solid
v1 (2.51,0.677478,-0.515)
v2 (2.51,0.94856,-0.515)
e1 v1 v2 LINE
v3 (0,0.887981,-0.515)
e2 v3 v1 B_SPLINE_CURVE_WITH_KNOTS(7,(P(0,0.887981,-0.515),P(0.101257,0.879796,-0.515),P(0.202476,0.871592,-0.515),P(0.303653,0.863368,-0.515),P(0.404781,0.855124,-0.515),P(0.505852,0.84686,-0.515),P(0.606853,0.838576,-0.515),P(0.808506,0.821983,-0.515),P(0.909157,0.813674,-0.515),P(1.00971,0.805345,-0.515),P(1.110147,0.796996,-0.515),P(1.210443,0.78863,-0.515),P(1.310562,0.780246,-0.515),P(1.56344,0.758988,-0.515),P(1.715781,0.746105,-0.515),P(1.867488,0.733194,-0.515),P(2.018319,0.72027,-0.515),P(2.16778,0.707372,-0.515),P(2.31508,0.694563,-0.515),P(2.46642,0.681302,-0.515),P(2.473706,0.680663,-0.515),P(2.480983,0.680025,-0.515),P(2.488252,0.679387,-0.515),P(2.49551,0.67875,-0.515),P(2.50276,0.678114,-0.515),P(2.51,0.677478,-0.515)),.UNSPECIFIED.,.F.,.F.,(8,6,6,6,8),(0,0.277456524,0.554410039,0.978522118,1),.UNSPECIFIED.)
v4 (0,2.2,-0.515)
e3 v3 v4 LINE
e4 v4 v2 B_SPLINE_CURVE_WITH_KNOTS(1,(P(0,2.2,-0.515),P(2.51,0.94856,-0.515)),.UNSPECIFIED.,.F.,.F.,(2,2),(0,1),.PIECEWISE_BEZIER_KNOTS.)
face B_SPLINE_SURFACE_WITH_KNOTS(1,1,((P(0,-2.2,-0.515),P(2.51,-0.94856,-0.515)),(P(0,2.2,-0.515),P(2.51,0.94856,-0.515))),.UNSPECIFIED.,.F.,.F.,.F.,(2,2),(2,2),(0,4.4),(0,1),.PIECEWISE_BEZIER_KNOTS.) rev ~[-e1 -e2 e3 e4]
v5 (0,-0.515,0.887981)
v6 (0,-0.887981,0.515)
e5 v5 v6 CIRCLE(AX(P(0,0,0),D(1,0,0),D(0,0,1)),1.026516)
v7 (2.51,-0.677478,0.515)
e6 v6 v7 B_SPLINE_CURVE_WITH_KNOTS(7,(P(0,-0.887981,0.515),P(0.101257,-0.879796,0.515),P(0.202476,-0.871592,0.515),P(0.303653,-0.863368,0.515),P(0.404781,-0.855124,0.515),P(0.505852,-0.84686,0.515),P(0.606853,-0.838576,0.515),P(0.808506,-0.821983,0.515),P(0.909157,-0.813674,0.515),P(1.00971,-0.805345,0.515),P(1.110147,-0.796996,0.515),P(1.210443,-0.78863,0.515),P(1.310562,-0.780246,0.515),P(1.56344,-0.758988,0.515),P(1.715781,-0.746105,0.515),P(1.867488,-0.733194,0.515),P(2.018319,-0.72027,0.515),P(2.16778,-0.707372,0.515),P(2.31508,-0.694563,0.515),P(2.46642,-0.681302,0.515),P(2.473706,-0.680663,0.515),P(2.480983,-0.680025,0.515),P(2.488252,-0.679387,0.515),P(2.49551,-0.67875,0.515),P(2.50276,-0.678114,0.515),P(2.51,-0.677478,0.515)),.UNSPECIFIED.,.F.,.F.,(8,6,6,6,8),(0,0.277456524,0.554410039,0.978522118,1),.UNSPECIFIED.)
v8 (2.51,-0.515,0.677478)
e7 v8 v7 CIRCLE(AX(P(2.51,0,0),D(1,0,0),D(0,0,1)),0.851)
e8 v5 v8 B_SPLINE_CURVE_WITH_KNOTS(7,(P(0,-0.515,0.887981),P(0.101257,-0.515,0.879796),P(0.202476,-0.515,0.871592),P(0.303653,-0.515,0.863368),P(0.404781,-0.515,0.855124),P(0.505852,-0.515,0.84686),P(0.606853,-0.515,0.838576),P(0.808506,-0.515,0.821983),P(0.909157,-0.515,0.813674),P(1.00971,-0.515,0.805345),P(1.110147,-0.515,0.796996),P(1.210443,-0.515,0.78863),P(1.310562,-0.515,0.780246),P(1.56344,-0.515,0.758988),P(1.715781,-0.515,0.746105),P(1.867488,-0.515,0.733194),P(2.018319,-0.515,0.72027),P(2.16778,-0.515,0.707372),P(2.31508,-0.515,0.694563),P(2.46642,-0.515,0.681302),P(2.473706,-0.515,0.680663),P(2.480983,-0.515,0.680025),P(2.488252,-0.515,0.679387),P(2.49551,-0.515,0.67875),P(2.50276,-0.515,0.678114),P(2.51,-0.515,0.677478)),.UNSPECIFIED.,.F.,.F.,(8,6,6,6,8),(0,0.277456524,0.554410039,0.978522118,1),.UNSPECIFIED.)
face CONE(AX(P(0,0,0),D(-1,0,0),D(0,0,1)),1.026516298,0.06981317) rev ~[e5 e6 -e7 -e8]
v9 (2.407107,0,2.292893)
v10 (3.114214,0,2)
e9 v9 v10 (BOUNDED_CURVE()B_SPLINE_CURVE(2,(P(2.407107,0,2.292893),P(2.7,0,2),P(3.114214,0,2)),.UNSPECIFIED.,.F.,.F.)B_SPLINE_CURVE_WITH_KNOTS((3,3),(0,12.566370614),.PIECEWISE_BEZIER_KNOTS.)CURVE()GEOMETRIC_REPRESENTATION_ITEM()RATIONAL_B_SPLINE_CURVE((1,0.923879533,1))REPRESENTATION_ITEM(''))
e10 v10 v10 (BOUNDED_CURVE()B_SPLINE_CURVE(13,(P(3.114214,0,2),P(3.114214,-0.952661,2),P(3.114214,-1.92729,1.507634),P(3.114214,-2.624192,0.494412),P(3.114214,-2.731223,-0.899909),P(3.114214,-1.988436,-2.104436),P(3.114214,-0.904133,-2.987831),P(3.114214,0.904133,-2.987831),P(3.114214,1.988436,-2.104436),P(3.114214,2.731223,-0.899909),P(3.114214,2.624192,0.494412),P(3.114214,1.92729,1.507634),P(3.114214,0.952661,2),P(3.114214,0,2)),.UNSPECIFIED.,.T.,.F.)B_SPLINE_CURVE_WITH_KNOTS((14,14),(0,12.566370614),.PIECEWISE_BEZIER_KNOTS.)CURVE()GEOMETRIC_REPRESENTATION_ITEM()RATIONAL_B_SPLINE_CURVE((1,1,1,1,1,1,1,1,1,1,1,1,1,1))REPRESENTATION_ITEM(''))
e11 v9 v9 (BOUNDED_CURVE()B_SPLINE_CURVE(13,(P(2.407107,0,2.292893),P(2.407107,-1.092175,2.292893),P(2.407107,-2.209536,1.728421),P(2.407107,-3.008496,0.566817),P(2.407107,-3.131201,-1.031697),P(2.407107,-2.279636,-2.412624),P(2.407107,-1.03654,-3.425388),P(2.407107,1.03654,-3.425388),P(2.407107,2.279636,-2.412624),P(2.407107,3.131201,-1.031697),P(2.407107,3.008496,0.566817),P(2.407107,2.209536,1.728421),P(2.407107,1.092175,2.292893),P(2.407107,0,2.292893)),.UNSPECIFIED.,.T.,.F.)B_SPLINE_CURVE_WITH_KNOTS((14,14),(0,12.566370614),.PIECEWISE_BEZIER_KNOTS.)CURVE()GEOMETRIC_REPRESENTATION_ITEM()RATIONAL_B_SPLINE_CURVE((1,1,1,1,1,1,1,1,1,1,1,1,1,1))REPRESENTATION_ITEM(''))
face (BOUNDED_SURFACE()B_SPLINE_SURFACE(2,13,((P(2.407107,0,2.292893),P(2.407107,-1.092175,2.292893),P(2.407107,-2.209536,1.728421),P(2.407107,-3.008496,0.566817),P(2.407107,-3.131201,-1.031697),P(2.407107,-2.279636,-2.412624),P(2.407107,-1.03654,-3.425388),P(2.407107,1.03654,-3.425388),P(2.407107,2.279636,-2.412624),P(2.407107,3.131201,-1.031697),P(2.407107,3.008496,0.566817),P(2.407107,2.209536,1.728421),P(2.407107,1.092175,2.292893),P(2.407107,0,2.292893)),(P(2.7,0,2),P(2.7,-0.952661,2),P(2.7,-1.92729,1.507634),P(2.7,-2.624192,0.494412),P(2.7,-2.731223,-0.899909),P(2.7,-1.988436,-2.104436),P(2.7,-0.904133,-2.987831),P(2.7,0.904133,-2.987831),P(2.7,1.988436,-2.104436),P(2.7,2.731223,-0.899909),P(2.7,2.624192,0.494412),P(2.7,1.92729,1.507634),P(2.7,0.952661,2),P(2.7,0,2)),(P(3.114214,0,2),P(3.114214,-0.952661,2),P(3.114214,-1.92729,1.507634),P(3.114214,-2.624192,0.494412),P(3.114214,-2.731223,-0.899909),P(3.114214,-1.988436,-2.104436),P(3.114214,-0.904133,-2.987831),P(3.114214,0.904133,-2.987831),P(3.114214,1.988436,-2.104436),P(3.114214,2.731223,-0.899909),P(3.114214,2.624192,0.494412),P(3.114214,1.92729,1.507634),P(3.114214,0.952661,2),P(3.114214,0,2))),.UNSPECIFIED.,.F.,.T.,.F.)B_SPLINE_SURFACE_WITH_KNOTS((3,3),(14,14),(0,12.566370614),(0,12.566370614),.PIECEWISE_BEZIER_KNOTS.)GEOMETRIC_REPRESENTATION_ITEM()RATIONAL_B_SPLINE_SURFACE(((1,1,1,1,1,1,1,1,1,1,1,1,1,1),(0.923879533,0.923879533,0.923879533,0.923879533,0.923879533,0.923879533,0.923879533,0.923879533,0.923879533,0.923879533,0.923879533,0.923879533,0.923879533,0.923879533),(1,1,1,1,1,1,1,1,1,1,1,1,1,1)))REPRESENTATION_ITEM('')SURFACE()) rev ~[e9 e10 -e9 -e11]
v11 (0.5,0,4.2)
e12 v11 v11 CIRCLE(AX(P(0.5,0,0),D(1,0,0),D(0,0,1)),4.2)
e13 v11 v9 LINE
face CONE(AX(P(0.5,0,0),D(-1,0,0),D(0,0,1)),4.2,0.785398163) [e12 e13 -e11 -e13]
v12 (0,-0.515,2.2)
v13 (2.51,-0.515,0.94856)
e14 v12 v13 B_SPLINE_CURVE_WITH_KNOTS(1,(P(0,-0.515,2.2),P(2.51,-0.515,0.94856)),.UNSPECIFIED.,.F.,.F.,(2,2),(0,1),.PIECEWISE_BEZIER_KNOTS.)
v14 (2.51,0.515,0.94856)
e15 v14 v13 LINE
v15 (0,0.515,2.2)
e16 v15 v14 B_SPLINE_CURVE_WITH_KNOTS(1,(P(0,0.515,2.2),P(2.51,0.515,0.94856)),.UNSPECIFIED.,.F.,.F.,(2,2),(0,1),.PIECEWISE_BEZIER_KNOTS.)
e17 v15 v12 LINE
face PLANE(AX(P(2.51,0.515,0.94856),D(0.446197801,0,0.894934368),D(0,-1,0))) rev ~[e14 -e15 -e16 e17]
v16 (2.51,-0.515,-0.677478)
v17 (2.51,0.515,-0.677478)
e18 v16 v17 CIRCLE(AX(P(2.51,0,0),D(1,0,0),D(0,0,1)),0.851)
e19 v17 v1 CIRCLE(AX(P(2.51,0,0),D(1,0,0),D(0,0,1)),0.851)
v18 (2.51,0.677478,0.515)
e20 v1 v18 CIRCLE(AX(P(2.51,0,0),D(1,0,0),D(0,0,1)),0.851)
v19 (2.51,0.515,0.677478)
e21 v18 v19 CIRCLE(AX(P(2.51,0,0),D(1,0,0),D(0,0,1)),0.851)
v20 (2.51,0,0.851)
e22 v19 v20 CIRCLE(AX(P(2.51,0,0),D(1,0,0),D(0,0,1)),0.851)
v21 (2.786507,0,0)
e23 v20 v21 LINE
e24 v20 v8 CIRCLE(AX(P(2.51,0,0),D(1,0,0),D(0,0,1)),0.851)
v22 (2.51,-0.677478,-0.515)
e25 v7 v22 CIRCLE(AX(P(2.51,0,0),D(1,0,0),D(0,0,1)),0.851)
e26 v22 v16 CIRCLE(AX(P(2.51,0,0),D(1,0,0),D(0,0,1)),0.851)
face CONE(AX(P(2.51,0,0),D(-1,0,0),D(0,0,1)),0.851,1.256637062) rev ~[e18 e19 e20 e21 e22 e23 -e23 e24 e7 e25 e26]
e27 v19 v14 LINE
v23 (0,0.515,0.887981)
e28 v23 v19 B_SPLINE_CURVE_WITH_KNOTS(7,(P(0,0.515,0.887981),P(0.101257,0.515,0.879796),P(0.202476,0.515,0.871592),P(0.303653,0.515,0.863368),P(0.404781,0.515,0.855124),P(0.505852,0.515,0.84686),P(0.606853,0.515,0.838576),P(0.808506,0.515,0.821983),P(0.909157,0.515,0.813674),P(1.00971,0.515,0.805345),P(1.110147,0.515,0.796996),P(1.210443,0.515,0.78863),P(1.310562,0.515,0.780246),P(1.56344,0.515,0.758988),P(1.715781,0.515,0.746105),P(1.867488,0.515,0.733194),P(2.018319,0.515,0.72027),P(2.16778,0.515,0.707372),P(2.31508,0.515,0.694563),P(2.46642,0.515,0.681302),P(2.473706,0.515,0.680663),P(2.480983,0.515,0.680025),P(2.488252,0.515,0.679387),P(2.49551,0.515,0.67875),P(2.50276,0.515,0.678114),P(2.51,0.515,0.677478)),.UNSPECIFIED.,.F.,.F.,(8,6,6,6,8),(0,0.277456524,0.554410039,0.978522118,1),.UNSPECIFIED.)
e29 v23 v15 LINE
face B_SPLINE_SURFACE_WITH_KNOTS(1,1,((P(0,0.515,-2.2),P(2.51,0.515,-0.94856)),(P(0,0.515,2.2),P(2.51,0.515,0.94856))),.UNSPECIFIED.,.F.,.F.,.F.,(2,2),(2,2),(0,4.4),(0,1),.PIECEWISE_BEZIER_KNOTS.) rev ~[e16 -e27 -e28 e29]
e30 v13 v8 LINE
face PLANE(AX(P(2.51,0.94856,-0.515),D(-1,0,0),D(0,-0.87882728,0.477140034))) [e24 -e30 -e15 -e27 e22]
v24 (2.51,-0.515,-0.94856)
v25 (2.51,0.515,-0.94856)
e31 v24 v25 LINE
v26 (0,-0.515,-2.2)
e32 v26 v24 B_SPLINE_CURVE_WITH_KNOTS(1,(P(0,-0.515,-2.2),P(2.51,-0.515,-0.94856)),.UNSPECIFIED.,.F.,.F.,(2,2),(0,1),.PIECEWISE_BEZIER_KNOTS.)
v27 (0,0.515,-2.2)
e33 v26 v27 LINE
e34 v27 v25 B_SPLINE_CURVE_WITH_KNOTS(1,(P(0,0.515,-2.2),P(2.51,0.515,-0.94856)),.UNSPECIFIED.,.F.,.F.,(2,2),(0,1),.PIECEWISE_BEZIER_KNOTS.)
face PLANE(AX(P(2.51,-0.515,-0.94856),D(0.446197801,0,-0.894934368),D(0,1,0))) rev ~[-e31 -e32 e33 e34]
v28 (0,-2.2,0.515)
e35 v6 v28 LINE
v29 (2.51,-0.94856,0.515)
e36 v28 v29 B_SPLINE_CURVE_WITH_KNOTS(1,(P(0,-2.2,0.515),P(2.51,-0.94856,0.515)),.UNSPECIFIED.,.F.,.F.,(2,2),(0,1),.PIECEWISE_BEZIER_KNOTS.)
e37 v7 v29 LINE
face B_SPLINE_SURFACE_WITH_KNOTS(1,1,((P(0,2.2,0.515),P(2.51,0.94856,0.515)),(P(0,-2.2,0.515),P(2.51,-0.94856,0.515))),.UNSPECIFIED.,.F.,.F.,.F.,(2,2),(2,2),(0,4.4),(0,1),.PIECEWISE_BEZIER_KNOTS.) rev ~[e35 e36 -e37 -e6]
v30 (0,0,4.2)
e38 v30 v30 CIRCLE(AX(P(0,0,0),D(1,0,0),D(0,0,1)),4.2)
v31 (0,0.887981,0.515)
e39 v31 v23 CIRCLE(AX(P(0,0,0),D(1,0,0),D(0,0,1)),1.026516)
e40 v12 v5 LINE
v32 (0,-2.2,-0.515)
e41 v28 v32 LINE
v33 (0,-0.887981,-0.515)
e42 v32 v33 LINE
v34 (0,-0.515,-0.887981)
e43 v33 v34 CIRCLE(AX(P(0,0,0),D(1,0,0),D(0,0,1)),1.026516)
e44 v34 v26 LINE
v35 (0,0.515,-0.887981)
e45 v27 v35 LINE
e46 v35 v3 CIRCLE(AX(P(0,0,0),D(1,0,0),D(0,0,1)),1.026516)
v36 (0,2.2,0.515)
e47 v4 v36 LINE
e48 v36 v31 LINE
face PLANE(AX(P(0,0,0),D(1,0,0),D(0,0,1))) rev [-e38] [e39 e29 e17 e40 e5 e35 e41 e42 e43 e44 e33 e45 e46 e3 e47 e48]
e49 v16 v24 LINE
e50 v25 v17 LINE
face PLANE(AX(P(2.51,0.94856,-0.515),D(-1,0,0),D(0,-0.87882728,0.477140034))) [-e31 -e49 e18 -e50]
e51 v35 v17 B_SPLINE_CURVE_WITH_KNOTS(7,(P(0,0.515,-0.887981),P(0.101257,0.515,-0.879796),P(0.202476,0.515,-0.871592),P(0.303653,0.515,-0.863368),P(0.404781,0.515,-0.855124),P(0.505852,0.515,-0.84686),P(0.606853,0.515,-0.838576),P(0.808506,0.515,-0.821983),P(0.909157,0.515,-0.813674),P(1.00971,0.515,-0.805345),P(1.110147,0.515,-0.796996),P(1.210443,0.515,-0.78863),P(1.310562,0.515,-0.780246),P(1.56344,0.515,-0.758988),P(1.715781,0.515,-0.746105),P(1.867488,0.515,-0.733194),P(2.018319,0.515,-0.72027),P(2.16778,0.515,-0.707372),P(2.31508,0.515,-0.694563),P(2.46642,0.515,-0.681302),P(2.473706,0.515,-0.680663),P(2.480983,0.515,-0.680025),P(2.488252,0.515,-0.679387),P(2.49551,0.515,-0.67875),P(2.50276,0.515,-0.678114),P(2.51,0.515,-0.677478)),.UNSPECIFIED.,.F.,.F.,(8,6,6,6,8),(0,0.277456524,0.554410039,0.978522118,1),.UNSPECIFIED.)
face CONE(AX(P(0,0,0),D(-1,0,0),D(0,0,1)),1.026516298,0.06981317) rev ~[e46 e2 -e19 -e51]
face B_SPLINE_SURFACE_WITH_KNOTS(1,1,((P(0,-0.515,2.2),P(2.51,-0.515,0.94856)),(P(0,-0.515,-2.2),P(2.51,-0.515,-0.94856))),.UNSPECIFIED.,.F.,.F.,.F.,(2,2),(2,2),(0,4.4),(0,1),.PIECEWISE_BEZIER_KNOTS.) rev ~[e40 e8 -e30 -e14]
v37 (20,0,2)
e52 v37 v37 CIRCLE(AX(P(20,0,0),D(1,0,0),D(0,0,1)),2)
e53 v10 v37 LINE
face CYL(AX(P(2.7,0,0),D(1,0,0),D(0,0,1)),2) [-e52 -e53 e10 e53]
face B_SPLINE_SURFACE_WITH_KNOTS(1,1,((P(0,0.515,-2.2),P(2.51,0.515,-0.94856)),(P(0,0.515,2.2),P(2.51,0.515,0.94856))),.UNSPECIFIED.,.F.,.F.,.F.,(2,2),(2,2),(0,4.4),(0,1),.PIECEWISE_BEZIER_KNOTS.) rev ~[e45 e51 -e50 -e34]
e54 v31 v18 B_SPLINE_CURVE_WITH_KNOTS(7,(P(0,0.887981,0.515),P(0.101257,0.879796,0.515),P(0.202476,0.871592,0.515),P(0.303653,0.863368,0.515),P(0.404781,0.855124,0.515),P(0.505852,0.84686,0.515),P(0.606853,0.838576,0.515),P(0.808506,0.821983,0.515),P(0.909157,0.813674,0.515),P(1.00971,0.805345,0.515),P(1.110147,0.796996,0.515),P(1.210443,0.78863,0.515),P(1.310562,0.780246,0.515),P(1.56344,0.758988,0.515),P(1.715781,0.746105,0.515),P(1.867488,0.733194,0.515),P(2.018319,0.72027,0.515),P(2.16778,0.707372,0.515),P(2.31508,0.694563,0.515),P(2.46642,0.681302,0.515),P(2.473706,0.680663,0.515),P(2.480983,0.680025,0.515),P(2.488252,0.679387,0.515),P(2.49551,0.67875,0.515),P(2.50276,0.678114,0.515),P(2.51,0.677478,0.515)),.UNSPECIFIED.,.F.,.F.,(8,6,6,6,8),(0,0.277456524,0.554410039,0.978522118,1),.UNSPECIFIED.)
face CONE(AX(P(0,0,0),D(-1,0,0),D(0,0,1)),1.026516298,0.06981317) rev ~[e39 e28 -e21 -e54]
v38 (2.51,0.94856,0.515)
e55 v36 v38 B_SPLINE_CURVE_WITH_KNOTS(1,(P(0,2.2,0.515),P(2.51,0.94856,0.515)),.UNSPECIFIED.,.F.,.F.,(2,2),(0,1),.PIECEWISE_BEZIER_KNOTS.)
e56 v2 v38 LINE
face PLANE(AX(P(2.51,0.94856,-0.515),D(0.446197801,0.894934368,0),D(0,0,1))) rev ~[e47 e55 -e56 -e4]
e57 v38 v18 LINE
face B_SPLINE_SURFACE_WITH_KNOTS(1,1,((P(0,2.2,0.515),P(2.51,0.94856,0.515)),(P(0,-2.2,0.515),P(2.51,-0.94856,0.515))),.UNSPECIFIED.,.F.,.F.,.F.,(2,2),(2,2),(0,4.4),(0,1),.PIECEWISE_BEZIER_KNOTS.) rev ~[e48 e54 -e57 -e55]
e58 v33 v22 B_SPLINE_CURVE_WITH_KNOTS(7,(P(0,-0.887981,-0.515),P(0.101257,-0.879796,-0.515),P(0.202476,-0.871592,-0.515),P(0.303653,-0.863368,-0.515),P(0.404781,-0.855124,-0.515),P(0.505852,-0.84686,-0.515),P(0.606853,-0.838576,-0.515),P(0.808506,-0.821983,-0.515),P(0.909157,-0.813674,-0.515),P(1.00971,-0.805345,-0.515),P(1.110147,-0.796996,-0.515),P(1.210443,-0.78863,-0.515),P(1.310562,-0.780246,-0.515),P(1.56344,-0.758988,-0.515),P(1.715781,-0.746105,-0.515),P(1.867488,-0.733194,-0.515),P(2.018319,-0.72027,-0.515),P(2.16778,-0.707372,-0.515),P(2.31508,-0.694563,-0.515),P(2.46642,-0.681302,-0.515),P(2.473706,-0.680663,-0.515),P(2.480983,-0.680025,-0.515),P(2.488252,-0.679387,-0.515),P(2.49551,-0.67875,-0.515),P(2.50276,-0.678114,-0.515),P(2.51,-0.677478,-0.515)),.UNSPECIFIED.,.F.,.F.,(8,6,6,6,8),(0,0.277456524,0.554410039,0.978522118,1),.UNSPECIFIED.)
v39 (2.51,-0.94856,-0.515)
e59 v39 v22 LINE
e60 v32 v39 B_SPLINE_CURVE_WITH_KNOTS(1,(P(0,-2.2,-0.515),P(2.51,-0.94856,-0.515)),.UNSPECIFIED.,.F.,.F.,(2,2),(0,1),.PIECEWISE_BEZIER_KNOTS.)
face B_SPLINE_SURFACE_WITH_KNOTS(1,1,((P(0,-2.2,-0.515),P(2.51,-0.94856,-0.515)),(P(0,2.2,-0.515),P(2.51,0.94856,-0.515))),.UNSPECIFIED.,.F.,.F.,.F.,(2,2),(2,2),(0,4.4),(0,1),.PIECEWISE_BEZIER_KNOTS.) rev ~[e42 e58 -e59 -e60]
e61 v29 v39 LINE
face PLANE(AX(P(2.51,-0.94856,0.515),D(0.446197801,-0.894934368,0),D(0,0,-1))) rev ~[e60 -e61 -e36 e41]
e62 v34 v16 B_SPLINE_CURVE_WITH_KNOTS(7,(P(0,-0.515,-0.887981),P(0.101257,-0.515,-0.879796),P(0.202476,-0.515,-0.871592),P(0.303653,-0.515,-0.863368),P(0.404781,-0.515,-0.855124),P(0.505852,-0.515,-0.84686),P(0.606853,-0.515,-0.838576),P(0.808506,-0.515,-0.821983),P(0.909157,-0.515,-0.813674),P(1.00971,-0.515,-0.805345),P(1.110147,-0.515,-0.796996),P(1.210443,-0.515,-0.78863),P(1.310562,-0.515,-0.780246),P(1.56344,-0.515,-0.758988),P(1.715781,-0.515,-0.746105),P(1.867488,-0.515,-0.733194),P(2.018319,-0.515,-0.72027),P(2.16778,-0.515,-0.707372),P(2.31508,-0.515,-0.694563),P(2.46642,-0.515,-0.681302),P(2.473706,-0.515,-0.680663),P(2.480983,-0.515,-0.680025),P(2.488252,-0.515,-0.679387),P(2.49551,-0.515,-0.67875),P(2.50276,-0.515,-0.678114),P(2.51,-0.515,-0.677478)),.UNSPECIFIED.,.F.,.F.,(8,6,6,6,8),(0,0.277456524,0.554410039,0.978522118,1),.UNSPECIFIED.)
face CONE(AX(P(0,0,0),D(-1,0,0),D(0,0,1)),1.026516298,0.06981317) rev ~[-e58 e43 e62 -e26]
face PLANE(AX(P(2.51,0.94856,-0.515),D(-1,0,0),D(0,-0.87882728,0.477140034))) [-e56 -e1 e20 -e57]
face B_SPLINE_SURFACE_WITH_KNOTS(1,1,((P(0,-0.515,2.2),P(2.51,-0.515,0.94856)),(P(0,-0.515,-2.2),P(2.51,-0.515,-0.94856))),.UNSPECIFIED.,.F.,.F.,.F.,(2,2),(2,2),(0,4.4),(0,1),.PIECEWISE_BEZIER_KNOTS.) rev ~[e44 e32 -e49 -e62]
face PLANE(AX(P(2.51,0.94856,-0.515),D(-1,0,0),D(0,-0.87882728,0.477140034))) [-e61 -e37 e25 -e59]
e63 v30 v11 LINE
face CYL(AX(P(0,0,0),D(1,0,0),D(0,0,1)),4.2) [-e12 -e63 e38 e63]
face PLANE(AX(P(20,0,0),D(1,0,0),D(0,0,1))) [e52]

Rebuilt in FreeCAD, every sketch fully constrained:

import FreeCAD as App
import Part
import Sketcher
Q = App.Units.Quantity


def edges_at(feature, points):
    """Names of the edges that pass closest to the given points."""
    edges = feature.Shape.Edges
    near = lambda p: min(range(len(edges)), key=lambda i: edges[i].distToShape(Part.Vertex(*p))[0])
    return sorted({f"Edge{near(p) + 1}" for p in points})


def add_polygon(sketch, points):
    """Adds a closed chain of lines whose ends are joined by coincident constraints."""
    first, n = sketch.GeometryCount, len(points)
    for a, b in zip(points, points[1:] + points[:1]):
        sketch.addGeometry(Part.LineSegment(App.Vector(*a, 0), App.Vector(*b, 0)), False)
    for i in range(n):
        sketch.addConstraint(Sketcher.Constraint("Coincident", first + i, 2, first + (i + 1) % n, 1))

doc = App.newDocument("Part")
params = doc.addObject("Spreadsheet::Sheet", "Params")
for row, (alias, value) in enumerate([
    ("sketch1_width", "20 mm"),
    ("sketch1_height", "2 mm"),
    ("sketch1_width2", "17.3 mm"),
    ("sketch1_width3", "0.5 mm"),
    ("revolution_angle", "360 deg"),
    ("fillet_radius", "1 mm"),
    ("sketch2_width", "4.4 mm"),
    ("sketch2_height", "1.03 mm"),
    ("sketch3_height", "1.03 mm"),
    ("groove_angle", "360 deg"),
], start=1):
    params.set(f"A{row}", alias)
    params.set(f"B{row}", "=" + value)
    params.setAlias(f"B{row}", alias)

body = doc.addObject("PartDesign::Body", "Body")

# Sketch on XY plane
sketch1 = doc.addObject("Sketcher::SketchObject", "Sketch")
body.addObject(sketch1)
sketch1.AttachmentSupport = (doc.XY_Plane, [""])
sketch1.MapMode = "FlatFace"
add_polygon(sketch1, [(0, 4.2), (0, 0), (20, 0), (20, 2), (2.7, 2), (0.5, 4.2)])  # lines 0-5
sketch1.addConstraint([
    Sketcher.Constraint("Vertical", 0),
    Sketcher.Constraint("Horizontal", 1),
    Sketcher.Constraint("Vertical", 2),
    Sketcher.Constraint("Horizontal", 3),
    Sketcher.Constraint("Horizontal", 5),
    Sketcher.Constraint("Coincident", 0, 2, -1, 1),
    Sketcher.Constraint("DistanceX", 1, 1, 1, 2, 20.0),
    Sketcher.Constraint("DistanceY", 2, 1, 2, 2, 2.0),
    Sketcher.Constraint("Angle", 4, Q("135 deg")),
    Sketcher.Constraint("DistanceX", 3, 2, 3, 1, 17.3),
    Sketcher.Constraint("DistanceX", 5, 2, 5, 1, 0.5),
])
sketch1.setExpression("Constraints[12]", "Params.sketch1_width")
sketch1.setExpression("Constraints[13]", "Params.sketch1_height")
sketch1.setExpression("Constraints[15]", "Params.sketch1_width2")
sketch1.setExpression("Constraints[16]", "Params.sketch1_width3")
revolution = doc.addObject("PartDesign::Revolution", "Revolution")
body.addObject(revolution)
revolution.Profile = sketch1
revolution.ReferenceAxis = (sketch1, ["H_Axis"])
revolution.setExpression("Angle", "Params.revolution_angle")
doc.recompute()

fillet = doc.addObject("PartDesign::Fillet", "Fillet")
body.addObject(fillet)
fillet.Base = (revolution, edges_at(revolution, [(2.7, 0, -2)]))
fillet.setExpression("Radius", "Params.fillet_radius")

# Sketch on YZ plane
sketch2 = doc.addObject("Sketcher::SketchObject", "Sketch001")
body.addObject(sketch2)
sketch2.AttachmentSupport = (doc.YZ_Plane, [""])
sketch2.MapMode = "FlatFace"
add_polygon(sketch2, [(2.2, 0.515), (2.2, -0.515), (-2.2, -0.515), (-2.2, 0.515)])  # lines 0-3
sketch2.addConstraint([
    Sketcher.Constraint("Vertical", 0),
    Sketcher.Constraint("Horizontal", 1),
    Sketcher.Constraint("Vertical", 2),
    Sketcher.Constraint("Horizontal", 3),
    Sketcher.Constraint("Symmetric", 0, 2, 2, 2, -1, 1),
    Sketcher.Constraint("DistanceX", 1, 2, 1, 1, 4.4),
    Sketcher.Constraint("DistanceY", 0, 2, 0, 1, 1.03),
])
sketch2.setExpression("Constraints[9]", "Params.sketch2_width")
sketch2.setExpression("Constraints[10]", "Params.sketch2_height")

# Sketch on YZ plane
sketch3 = doc.addObject("Sketcher::SketchObject", "Sketch002")
body.addObject(sketch3)
sketch3.AttachmentSupport = (doc.YZ_Plane, [""])
sketch3.MapMode = "FlatFace"
sketch3.AttachmentOffset = App.Placement(App.Vector(0, 0, 2.51), App.Rotation())
add_polygon(sketch3, [(0.94856, 0.515), (0.94856, -0.515), (-0.94856, -0.515), (-0.94856, 0.515)])  # lines 0-3
sketch3.addConstraint([
    Sketcher.Constraint("Vertical", 0),
    Sketcher.Constraint("Horizontal", 1),
    Sketcher.Constraint("Vertical", 2),
    Sketcher.Constraint("Horizontal", 3),
    Sketcher.Constraint("Symmetric", 0, 2, 2, 2, -1, 1),
    Sketcher.Constraint("DistanceY", 0, 2, 0, 1, 1.03),
    Sketcher.Constraint("DistanceX", 1, 2, 1, 1, 1.89712),
])
sketch3.setExpression("Constraints[9]", "Params.sketch3_height")

subtractiveloft = doc.addObject("PartDesign::SubtractiveLoft", "SubtractiveLoft")
body.addObject(subtractiveloft)
subtractiveloft.Profile = sketch2
subtractiveloft.Sections = [sketch3]
doc.recompute()

polarpattern = doc.addObject("PartDesign::PolarPattern", "PolarPattern")
body.addObject(polarpattern)
polarpattern.Originals = [subtractiveloft]
polarpattern.Axis = (doc.X_Axis, [""])
polarpattern.Angle = 90
polarpattern.Occurrences = 2
body.Tip = polarpattern

# Sketch on XY plane
sketch4 = doc.addObject("Sketcher::SketchObject", "Sketch003")
body.addObject(sketch4)
sketch4.AttachmentSupport = (doc.XY_Plane, [""])
sketch4.MapMode = "FlatFace"
add_polygon(sketch4, [(0, 1.026516), (0, 0), (2.786507, 0), (2.51, 0.851)])  # lines 0-3
sketch4.addConstraint([
    Sketcher.Constraint("Vertical", 0),
    Sketcher.Constraint("Horizontal", 1),
    Sketcher.Constraint("Coincident", 0, 2, -1, 1),
    Sketcher.Constraint("Angle", 2, Q("108 deg")),
    Sketcher.Constraint("Angle", 3, Q("176 deg")),
    Sketcher.Constraint("DistanceX", -1, 1, 2, 2, 2.51),
    Sketcher.Constraint("DistanceY", -1, 1, 2, 2, 0.851),
])
groove = doc.addObject("PartDesign::Groove", "Groove")
body.addObject(groove)
groove.Profile = sketch4
groove.ReferenceAxis = (sketch4, ["H_Axis"])
groove.setExpression("Angle", "Params.groove_angle")

doc.recompute()
